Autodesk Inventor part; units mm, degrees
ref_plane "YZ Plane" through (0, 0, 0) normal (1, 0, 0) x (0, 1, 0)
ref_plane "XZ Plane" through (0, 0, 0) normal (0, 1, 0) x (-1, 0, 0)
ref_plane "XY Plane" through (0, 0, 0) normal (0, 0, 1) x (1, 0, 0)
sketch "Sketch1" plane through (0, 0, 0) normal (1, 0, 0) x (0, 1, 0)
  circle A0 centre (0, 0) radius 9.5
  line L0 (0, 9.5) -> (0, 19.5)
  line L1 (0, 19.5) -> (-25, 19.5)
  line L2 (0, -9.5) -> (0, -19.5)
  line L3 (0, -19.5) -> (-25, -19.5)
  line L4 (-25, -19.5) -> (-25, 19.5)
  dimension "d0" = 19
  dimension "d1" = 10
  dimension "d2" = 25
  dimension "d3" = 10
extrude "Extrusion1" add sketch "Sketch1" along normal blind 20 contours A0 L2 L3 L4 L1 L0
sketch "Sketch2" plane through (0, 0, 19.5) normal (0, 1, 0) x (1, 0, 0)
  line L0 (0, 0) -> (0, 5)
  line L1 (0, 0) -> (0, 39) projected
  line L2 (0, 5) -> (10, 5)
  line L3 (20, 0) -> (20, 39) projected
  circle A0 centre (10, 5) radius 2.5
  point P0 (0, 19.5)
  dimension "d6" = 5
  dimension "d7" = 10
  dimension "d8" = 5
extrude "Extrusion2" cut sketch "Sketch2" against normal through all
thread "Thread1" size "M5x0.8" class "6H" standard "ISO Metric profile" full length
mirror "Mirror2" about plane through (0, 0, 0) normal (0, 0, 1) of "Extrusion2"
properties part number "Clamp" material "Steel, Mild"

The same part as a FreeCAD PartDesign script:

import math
import FreeCAD as App
import Part
import Sketcher

V = App.Vector

doc = App.newDocument("Part")
body = doc.addObject("PartDesign::Body", "Body")

sketch1 = body.newObject("Sketcher::SketchObject", "Sketch")
sketch1.AttachmentSupport = (doc.getObject("YZ_Plane"), [""])
sketch1.MapMode = "FlatFace"
sketch1.addGeometry(Part.ArcOfCircle(Part.Circle(V(0, 0, 0), V(0, 0, 1), 10), math.radians(90), math.radians(270)), False)
sketch1.addGeometry(Part.LineSegment(V(0, 10, 0), V(0, 20, 0)), False)
sketch1.addGeometry(Part.LineSegment(V(0, 20, 0), V(-25, 20, 0)), False)
sketch1.addGeometry(Part.LineSegment(V(-25, 20, 0), V(-25, -20, 0)), False)
sketch1.addGeometry(Part.LineSegment(V(-25, -20, 0), V(0, -20, 0)), False)
sketch1.addGeometry(Part.LineSegment(V(0, -20, 0), V(0, -10, 0)), False)
sketch1.addConstraint(Sketcher.Constraint("Coincident", 0, 1, 1, 1))
sketch1.addConstraint(Sketcher.Constraint("Coincident", 1, 2, 2, 1))
sketch1.addConstraint(Sketcher.Constraint("Coincident", 2, 2, 3, 1))
sketch1.addConstraint(Sketcher.Constraint("Coincident", 3, 2, 4, 1))
sketch1.addConstraint(Sketcher.Constraint("Coincident", 4, 2, 5, 1))
sketch1.addConstraint(Sketcher.Constraint("Coincident", 5, 2, 0, 2))
sketch1.addConstraint(Sketcher.Constraint("Vertical", 1))
sketch1.addConstraint(Sketcher.Constraint("Horizontal", 2))
sketch1.addConstraint(Sketcher.Constraint("Vertical", 3))
sketch1.addConstraint(Sketcher.Constraint("Horizontal", 4))
sketch1.addConstraint(Sketcher.Constraint("Vertical", 5))
sketch1.addConstraint(Sketcher.Constraint("Coincident", 0, 3, -1, 1))
sketch1.addConstraint(Sketcher.Constraint("Symmetric", 1, 2, 4, 2, -1, 1))
sketch1.addConstraint(Sketcher.Constraint("PointOnObject", 0, 1, -2))
sketch1.addConstraint(Sketcher.Constraint("Radius", 0, 9.5))
sketch1.addConstraint(Sketcher.Constraint("DistanceX", 2, 2, 2, 1, 25.0))
sketch1.addConstraint(Sketcher.Constraint("DistanceY", 1, 1, 1, 2, 10.0))
pad1 = body.newObject("PartDesign::Pad", "Pad")
pad1.Profile = sketch1
pad1.Length = 20

sketch2 = body.newObject("Sketcher::SketchObject", "Sketch001")
sketch2.AttachmentSupport = (doc.getObject("XZ_Plane"), [""])
sketch2.MapMode = "FlatFace"
sketch2.addGeometry(Part.Circle(V(10, 14.5, 0), V(0, 0, 1), 2.5), False)
sketch2.addConstraint(Sketcher.Constraint("Diameter", 0, 5.0))
sketch2.addConstraint(Sketcher.Constraint("DistanceX", -1, 1, 0, 3, 10.0))
sketch2.addConstraint(Sketcher.Constraint("DistanceY", -1, 1, 0, 3, 14.5))
pocket1 = body.newObject("PartDesign::Pocket", "Pocket")
pocket1.Profile = sketch2
pocket1.Type = "ThroughAll"
pocket1.Reversed = True
doc.recompute()

mirrored = body.newObject("PartDesign::Mirrored", "Mirrored")
mirrored.Originals = [pocket1]
mirrored.MirrorPlane = (doc.getObject("XY_Plane"), [""])
body.Tip = mirrored

doc.recompute()
